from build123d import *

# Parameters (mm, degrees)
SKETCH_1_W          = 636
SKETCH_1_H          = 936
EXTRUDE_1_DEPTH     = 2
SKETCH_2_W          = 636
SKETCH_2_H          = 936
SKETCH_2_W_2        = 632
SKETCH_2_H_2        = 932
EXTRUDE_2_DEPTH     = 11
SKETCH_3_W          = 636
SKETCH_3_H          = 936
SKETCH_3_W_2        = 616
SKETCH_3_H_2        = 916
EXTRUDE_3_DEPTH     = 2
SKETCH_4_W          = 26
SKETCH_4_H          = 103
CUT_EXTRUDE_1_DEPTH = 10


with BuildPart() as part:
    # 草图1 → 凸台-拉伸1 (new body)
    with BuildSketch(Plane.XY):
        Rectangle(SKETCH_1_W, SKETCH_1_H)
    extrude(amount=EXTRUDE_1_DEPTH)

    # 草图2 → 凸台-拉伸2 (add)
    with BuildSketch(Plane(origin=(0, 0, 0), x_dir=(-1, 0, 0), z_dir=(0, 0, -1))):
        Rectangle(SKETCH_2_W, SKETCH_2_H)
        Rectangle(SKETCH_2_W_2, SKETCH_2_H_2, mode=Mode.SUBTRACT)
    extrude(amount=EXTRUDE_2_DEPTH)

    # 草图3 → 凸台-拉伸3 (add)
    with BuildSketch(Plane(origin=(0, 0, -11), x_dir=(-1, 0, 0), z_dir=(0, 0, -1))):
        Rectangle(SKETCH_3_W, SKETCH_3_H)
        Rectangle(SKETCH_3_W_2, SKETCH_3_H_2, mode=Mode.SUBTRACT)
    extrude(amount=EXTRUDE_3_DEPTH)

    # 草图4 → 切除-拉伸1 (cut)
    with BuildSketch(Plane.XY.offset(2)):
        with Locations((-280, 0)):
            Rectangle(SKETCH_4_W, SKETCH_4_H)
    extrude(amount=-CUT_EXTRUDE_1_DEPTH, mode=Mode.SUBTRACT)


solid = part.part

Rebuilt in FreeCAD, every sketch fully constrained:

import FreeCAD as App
import Part
import Sketcher

doc = App.newDocument("Part")
body = doc.addObject("PartDesign::Body", "Body")

sketch1 = body.newObject("Sketcher::SketchObject", "Sketch")
sketch1.AttachmentSupport = (doc.getObject("XY_Plane"), [""])
sketch1.MapMode = "FlatFace"
sketch1.addGeometry([
    Part.LineSegment(App.Vector(-318, 468, 0), App.Vector(-318, -468, 0)),
    Part.LineSegment(App.Vector(-318, -468, 0), App.Vector(318, -468, 0)),
    Part.LineSegment(App.Vector(318, -468, 0), App.Vector(318, 468, 0)),
    Part.LineSegment(App.Vector(318, 468, 0), App.Vector(-318, 468, 0)),
], False)
sketch1.addConstraint([
    Sketcher.Constraint("Coincident", 0, 2, 1, 1),
    Sketcher.Constraint("Coincident", 1, 2, 2, 1),
    Sketcher.Constraint("Coincident", 2, 2, 3, 1),
    Sketcher.Constraint("Coincident", 3, 2, 0, 1),
    Sketcher.Constraint("Vertical", 0),
    Sketcher.Constraint("Horizontal", 1),
    Sketcher.Constraint("Vertical", 2),
    Sketcher.Constraint("Horizontal", 3),
    Sketcher.Constraint("Symmetric", 0, 2, 2, 2, -1, 1),
    Sketcher.Constraint("DistanceX", 1, 1, 1, 2, 636.0),
    Sketcher.Constraint("DistanceY", 0, 2, 0, 1, 936.0),
])
pad1 = body.newObject("PartDesign::Pad", "Pad")
pad1.Profile = sketch1
pad1.Length = 2

sketch2 = body.newObject("Sketcher::SketchObject", "Sketch001")
sketch2.AttachmentSupport = (doc.getObject("XY_Plane"), [""])
sketch2.MapMode = "FlatFace"
sketch2.addGeometry([
    Part.LineSegment(App.Vector(318, 468, 0), App.Vector(318, -468, 0)),
    Part.LineSegment(App.Vector(318, -468, 0), App.Vector(-318, -468, 0)),
    Part.LineSegment(App.Vector(-318, -468, 0), App.Vector(-318, 468, 0)),
    Part.LineSegment(App.Vector(-318, 468, 0), App.Vector(318, 468, 0)),
    Part.LineSegment(App.Vector(-316, -466, 0), App.Vector(316, -466, 0)),
    Part.LineSegment(App.Vector(316, -466, 0), App.Vector(316, 466, 0)),
    Part.LineSegment(App.Vector(316, 466, 0), App.Vector(-316, 466, 0)),
    Part.LineSegment(App.Vector(-316, 466, 0), App.Vector(-316, -466, 0)),
], False)
sketch2.addConstraint([
    Sketcher.Constraint("Coincident", 0, 2, 1, 1),
    Sketcher.Constraint("Coincident", 1, 2, 2, 1),
    Sketcher.Constraint("Coincident", 2, 2, 3, 1),
    Sketcher.Constraint("Coincident", 3, 2, 0, 1),
    Sketcher.Constraint("Coincident", 4, 2, 5, 1),
    Sketcher.Constraint("Coincident", 5, 2, 6, 1),
    Sketcher.Constraint("Coincident", 6, 2, 7, 1),
    Sketcher.Constraint("Coincident", 7, 2, 4, 1),
    Sketcher.Constraint("Vertical", 0),
    Sketcher.Constraint("Horizontal", 1),
    Sketcher.Constraint("Vertical", 2),
    Sketcher.Constraint("Horizontal", 3),
    Sketcher.Constraint("Horizontal", 4),
    Sketcher.Constraint("Vertical", 5),
    Sketcher.Constraint("Horizontal", 6),
    Sketcher.Constraint("Vertical", 7),
    Sketcher.Constraint("Symmetric", 0, 2, 2, 2, -1, 1),
    Sketcher.Constraint("Symmetric", 4, 2, 6, 2, -1, 1),
    Sketcher.Constraint("DistanceX", 1, 2, 1, 1, 636.0),
    Sketcher.Constraint("DistanceX", 4, 1, 4, 2, 632.0),
    Sketcher.Constraint("DistanceY", 0, 2, 0, 1, 936.0),
    Sketcher.Constraint("DistanceY", 5, 1, 5, 2, 932.0),
])
pad2 = body.newObject("PartDesign::Pad", "Pad001")
pad2.Profile = sketch2
pad2.Length = 11
pad2.Reversed = True

sketch3 = body.newObject("Sketcher::SketchObject", "Sketch002")
sketch3.AttachmentSupport = (doc.getObject("XY_Plane"), [""])
sketch3.MapMode = "FlatFace"
sketch3.AttachmentOffset = App.Placement(App.Vector(0, 0, -11), App.Rotation())
sketch3.addGeometry([
    Part.LineSegment(App.Vector(318, 468, 0), App.Vector(318, -468, 0)),
    Part.LineSegment(App.Vector(318, -468, 0), App.Vector(-318, -468, 0)),
    Part.LineSegment(App.Vector(-318, -468, 0), App.Vector(-318, 468, 0)),
    Part.LineSegment(App.Vector(-318, 468, 0), App.Vector(318, 468, 0)),
    Part.LineSegment(App.Vector(-308, -458, 0), App.Vector(308, -458, 0)),
    Part.LineSegment(App.Vector(308, -458, 0), App.Vector(308, 458, 0)),
    Part.LineSegment(App.Vector(308, 458, 0), App.Vector(-308, 458, 0)),
    Part.LineSegment(App.Vector(-308, 458, 0), App.Vector(-308, -458, 0)),
], False)
sketch3.addConstraint([
    Sketcher.Constraint("Coincident", 0, 2, 1, 1),
    Sketcher.Constraint("Coincident", 1, 2, 2, 1),
    Sketcher.Constraint("Coincident", 2, 2, 3, 1),
    Sketcher.Constraint("Coincident", 3, 2, 0, 1),
    Sketcher.Constraint("Coincident", 4, 2, 5, 1),
    Sketcher.Constraint("Coincident", 5, 2, 6, 1),
    Sketcher.Constraint("Coincident", 6, 2, 7, 1),
    Sketcher.Constraint("Coincident", 7, 2, 4, 1),
    Sketcher.Constraint("Vertical", 0),
    Sketcher.Constraint("Horizontal", 1),
    Sketcher.Constraint("Vertical", 2),
    Sketcher.Constraint("Horizontal", 3),
    Sketcher.Constraint("Horizontal", 4),
    Sketcher.Constraint("Vertical", 5),
    Sketcher.Constraint("Horizontal", 6),
    Sketcher.Constraint("Vertical", 7),
    Sketcher.Constraint("Symmetric", 0, 2, 2, 2, -1, 1),
    Sketcher.Constraint("Symmetric", 4, 2, 6, 2, -1, 1),
    Sketcher.Constraint("DistanceX", 1, 2, 1, 1, 636.0),
    Sketcher.Constraint("DistanceX", 4, 1, 4, 2, 616.0),
    Sketcher.Constraint("DistanceY", 0, 2, 0, 1, 936.0),
    Sketcher.Constraint("DistanceY", 5, 1, 5, 2, 916.0),
])
pad3 = body.newObject("PartDesign::Pad", "Pad002")
pad3.Profile = sketch3
pad3.Length = 2
pad3.Reversed = True

sketch4 = body.newObject("Sketcher::SketchObject", "Sketch003")
sketch4.AttachmentSupport = (doc.getObject("XY_Plane"), [""])
sketch4.MapMode = "FlatFace"
sketch4.AttachmentOffset = App.Placement(App.Vector(0, 0, 2), App.Rotation())
sketch4.addGeometry([
    Part.LineSegment(App.Vector(-293, 51.5, 0), App.Vector(-293, -51.5, 0)),
    Part.LineSegment(App.Vector(-293, -51.5, 0), App.Vector(-267, -51.5, 0)),
    Part.LineSegment(App.Vector(-267, -51.5, 0), App.Vector(-267, 51.5, 0)),
    Part.LineSegment(App.Vector(-267, 51.5, 0), App.Vector(-293, 51.5, 0)),
], False)
sketch4.addConstraint([
    Sketcher.Constraint("Coincident", 0, 2, 1, 1),
    Sketcher.Constraint("Coincident", 1, 2, 2, 1),
    Sketcher.Constraint("Coincident", 2, 2, 3, 1),
    Sketcher.Constraint("Coincident", 3, 2, 0, 1),
    Sketcher.Constraint("Vertical", 0),
    Sketcher.Constraint("Horizontal", 1),
    Sketcher.Constraint("Vertical", 2),
    Sketcher.Constraint("Horizontal", 3),
    Sketcher.Constraint("DistanceX", 1, 1, 1, 2, 26.0),
    Sketcher.Constraint("DistanceY", 0, 2, 0, 1, 103.0),
    Sketcher.Constraint("DistanceX", 0, 2, -1, 1, 293.0),
    Sketcher.Constraint("DistanceY", 0, 2, -1, 1, 51.5),
])
pocket1 = body.newObject("PartDesign::Pocket", "Pocket")
pocket1.Profile = sketch4
pocket1.Length = 10

doc.recompute()
